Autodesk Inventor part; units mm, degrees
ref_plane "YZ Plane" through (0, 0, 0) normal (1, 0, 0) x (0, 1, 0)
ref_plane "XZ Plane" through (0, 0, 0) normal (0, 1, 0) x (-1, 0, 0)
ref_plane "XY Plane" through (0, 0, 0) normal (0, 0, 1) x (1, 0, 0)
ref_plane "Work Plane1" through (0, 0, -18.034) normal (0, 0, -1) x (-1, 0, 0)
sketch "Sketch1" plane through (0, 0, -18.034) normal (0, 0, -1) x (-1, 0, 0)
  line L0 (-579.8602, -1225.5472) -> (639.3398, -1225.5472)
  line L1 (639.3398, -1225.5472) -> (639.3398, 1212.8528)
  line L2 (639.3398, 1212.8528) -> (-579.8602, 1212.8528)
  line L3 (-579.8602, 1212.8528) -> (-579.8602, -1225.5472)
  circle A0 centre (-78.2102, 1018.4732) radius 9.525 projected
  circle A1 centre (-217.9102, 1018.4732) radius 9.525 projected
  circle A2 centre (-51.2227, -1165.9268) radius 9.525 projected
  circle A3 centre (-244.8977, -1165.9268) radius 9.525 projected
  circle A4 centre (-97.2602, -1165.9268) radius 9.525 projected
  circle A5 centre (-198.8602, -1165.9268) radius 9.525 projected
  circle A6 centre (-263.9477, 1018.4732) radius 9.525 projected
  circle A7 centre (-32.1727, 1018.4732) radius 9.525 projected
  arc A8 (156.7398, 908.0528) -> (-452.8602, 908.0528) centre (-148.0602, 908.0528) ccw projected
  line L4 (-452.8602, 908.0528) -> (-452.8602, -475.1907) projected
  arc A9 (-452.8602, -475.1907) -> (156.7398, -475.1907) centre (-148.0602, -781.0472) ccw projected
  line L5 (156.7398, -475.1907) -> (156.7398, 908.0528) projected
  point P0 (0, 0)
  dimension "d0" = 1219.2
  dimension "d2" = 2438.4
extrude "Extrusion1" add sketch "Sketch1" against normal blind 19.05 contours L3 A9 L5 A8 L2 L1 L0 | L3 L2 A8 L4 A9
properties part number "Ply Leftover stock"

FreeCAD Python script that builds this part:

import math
import FreeCAD as App
import Part
import Sketcher

V = App.Vector
Q = App.Units.Quantity

doc = App.newDocument("Part")
params = doc.addObject("Spreadsheet::Sheet", "Params")
for row, (alias, value) in enumerate([
    ("sketch1_width", "48 in"),
    ("sketch1_height", "96 in"),
    ("sketch1_radius", "12 in"),
    ("sketch1_radius2", "17 in"),
    ("sketch1_height2", "17.5 in"),
    ("pad1_length", "0.75 in"),
], start=1):
    params.set(f"A{row}", alias)
    params.set(f"B{row}", "=" + value)
    params.setAlias(f"B{row}", alias)

body = doc.addObject("PartDesign::Body", "Body")
body.AllowCompound = True

sketch1 = body.newObject("Sketcher::SketchObject", "Sketch")
sketch1.AttachmentSupport = (doc.getObject("XY_Plane"), [""])
sketch1.MapMode = "FlatFace"
sketch1.AttachmentOffset = App.Placement(V(0, 0, -0.71 * 25.4), App.Rotation())
sketch1.addGeometry([
    Part.LineSegment(V(580, -781, 0), V(580, -1226, 0)),
    Part.LineSegment(V(580, -1226, 0), V(-639, -1226, 0)),
    Part.LineSegment(V(-639, -1226, 0), V(-639, 1213, 0)),
    Part.LineSegment(V(-639, 1213, 0), V(148, 1213, 0)),
    Part.ArcOfCircle(Part.Circle(V(148, 908, 0), V(0, 0, 1), 305), math.radians(90), math.radians(180)),
    Part.LineSegment(V(-157, 908, 0), V(-157, -475, 0)),
    Part.ArcOfCircle(Part.Circle(V(148, -781, 0), V(0, 0, 1), 432), math.radians(135), math.radians(360)),
    Part.LineSegment(V(580, 1213, 0), V(580, -781, 0)),
    Part.ArcOfCircle(Part.Circle(V(148, -781, 0), V(0, 0, 1), 432), math.radians(0), math.radians(45)),
    Part.LineSegment(V(453, -475, 0), V(453, 908, 0)),
    Part.ArcOfCircle(Part.Circle(V(148, 908, 0), V(0, 0, 1), 305), math.radians(0), math.radians(90)),
    Part.LineSegment(V(148, 1213, 0), V(580, 1213, 0)),
], False)
sketch1.addConstraint([
    Sketcher.Constraint("Coincident", 0, 2, 1, 1),
    Sketcher.Constraint("Coincident", 1, 2, 2, 1),
    Sketcher.Constraint("Coincident", 2, 2, 3, 1),
    Sketcher.Constraint("Tangent", 3, 2, 4, 1),
    Sketcher.Constraint("Tangent", 4, 2, 5, 1),
    Sketcher.Constraint("Coincident", 5, 2, 6, 1),
    Sketcher.Constraint("Tangent", 6, 2, 0, 1),
    Sketcher.Constraint("Tangent", 7, 2, 8, 1),
    Sketcher.Constraint("Coincident", 8, 2, 9, 1),
    Sketcher.Constraint("Tangent", 9, 2, 10, 1),
    Sketcher.Constraint("Tangent", 10, 2, 11, 1),
    Sketcher.Constraint("Coincident", 11, 2, 7, 1),
    Sketcher.Constraint("Vertical", 0),
    Sketcher.Constraint("Horizontal", 1),
    Sketcher.Constraint("Vertical", 2),
    Sketcher.Constraint("Horizontal", 3),
    Sketcher.Constraint("Vertical", 5),
    Sketcher.Constraint("Vertical", 7),
    Sketcher.Constraint("Vertical", 9),
    Sketcher.Constraint("Horizontal", 11),
    Sketcher.Constraint("Coincident", 8, 3, 6, 3),
    Sketcher.Constraint("Coincident", 10, 3, 4, 3),
    Sketcher.Constraint("Equal", 6, 8),
    Sketcher.Constraint("Equal", 4, 10),
    Sketcher.Constraint("Horizontal", 5, 2, 8, 2),
    Sketcher.Constraint("DistanceX", 1, 2, 1, 1, Q("48 in")),
    Sketcher.Constraint("DistanceY", 2, 1, 2, 2, Q("96 in")),
    Sketcher.Constraint("Radius", 4, Q("12 in")),
    Sketcher.Constraint("Radius", 6, Q("17 in")),
    Sketcher.Constraint("DistanceY", 0, 2, 0, 1, Q("17.5 in")),
    Sketcher.Constraint("DistanceY", -1, 1, 4, 3, Q("35.7501 in")),
    Sketcher.Constraint("DistanceX", -1, 1, 4, 3, Q("148.0602 mm")),
])
sketch1.setExpression("Constraints[25]", "Params.sketch1_width")
sketch1.setExpression("Constraints[26]", "Params.sketch1_height")
sketch1.setExpression("Constraints[27]", "Params.sketch1_radius")
sketch1.setExpression("Constraints[28]", "Params.sketch1_radius2")
sketch1.setExpression("Constraints[29]", "Params.sketch1_height2")
pad1 = body.newObject("PartDesign::Pad", "Pad")
pad1.Profile = sketch1
pad1.setExpression("Length", "Params.pad1_length")

doc.recompute()
